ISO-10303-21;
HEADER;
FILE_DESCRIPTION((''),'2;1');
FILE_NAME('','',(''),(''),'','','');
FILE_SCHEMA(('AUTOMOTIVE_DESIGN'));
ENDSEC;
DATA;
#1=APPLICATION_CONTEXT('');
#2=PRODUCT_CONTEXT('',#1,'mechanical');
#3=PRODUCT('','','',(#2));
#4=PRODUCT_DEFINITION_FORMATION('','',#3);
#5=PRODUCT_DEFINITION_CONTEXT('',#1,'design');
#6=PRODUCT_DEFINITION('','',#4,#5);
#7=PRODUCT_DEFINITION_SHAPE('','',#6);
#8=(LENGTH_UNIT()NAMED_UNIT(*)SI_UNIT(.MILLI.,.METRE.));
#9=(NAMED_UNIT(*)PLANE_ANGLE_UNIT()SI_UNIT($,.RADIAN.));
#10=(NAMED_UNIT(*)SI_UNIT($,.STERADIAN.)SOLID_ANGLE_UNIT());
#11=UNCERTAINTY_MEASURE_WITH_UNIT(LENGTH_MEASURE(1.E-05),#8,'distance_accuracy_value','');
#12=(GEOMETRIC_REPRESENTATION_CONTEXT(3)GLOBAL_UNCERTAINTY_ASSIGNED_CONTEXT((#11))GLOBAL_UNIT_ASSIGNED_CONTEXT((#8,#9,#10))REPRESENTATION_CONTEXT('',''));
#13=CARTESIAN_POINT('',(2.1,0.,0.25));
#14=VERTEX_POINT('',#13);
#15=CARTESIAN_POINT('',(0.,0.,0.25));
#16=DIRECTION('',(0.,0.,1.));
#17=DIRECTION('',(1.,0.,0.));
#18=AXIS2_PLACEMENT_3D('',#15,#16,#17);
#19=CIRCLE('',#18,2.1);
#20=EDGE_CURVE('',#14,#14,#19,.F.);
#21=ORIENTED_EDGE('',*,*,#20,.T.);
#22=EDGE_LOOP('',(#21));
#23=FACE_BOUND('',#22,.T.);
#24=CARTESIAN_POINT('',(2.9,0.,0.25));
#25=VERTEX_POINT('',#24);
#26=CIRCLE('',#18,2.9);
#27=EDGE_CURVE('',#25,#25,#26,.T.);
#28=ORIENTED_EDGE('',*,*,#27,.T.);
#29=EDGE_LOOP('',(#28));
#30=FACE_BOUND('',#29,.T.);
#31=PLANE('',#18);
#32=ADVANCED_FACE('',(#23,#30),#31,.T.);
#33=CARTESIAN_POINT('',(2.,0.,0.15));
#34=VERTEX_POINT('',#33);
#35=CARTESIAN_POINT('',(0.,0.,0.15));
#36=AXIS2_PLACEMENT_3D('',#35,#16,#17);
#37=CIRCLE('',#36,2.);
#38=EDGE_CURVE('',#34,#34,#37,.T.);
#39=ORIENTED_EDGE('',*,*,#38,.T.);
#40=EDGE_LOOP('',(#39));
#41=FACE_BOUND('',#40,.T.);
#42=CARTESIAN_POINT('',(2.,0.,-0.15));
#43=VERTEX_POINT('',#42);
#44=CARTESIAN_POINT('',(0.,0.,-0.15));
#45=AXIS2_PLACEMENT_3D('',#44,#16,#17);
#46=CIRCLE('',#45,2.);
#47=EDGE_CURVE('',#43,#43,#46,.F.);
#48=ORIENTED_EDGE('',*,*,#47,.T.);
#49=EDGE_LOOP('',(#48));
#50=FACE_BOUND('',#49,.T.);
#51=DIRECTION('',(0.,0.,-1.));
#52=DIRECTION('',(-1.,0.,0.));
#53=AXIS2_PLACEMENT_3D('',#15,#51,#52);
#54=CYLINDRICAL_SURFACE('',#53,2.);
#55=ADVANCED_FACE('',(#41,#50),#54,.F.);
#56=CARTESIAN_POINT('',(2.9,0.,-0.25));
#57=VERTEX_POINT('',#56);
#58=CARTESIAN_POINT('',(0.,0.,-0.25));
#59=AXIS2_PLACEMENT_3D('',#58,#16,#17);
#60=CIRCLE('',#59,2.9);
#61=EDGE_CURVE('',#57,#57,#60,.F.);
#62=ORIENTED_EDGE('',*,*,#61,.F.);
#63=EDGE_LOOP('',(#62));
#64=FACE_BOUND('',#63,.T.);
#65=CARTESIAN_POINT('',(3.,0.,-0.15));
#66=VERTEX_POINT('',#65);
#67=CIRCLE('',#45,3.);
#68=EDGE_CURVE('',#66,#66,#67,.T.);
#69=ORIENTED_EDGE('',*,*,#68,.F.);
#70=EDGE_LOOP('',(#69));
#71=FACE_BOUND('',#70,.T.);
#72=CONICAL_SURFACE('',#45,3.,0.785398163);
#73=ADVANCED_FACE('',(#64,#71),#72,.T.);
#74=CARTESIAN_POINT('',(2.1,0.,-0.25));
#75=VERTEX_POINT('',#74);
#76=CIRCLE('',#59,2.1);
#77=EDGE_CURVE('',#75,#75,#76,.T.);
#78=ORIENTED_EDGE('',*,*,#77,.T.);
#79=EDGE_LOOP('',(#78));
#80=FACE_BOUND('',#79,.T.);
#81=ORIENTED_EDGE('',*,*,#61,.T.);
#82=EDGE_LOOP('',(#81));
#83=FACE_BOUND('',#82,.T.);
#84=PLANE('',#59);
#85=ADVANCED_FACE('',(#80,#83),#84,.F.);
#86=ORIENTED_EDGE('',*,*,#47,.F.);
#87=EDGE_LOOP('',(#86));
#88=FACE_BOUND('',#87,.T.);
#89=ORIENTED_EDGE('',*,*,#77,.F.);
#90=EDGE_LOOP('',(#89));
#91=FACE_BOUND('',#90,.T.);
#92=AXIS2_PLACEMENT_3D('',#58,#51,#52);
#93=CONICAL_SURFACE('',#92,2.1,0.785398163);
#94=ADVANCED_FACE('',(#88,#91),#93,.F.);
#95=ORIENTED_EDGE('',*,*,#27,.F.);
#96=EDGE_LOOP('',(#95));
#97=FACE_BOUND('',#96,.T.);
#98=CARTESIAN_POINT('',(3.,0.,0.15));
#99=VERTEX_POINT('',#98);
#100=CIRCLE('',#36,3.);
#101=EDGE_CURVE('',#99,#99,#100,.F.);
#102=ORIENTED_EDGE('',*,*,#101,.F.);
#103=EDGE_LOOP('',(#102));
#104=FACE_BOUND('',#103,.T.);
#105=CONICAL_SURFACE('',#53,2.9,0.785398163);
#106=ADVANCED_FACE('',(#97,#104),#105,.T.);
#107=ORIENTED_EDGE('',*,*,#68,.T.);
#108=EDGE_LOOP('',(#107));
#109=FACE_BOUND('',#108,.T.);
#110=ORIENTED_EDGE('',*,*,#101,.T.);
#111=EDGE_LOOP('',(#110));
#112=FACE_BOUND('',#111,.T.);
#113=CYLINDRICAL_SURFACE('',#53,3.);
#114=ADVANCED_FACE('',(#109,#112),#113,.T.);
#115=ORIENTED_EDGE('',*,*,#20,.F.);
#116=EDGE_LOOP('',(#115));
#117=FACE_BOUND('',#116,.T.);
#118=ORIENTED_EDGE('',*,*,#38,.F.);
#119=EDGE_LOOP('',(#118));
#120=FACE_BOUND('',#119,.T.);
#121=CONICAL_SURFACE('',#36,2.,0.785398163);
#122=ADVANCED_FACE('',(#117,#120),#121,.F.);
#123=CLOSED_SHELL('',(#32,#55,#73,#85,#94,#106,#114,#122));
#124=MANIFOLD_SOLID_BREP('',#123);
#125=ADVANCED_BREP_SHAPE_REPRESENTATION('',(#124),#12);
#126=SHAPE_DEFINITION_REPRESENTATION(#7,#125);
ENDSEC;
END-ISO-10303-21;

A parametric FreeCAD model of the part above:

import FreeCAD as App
import Part
import Sketcher

V = App.Vector
Q = App.Units.Quantity


def edges_at(feature, points):
    """Names of the edges that pass closest to the given points."""
    edges = feature.Shape.Edges
    near = lambda p: min(range(len(edges)), key=lambda i: edges[i].distToShape(Part.Vertex(*p))[0])
    return sorted({f"Edge{near(p) + 1}" for p in points})

doc = App.newDocument("Part")
body = doc.addObject("PartDesign::Body", "Body")

# Sketch on XY plane
sketch1 = doc.addObject("Sketcher::SketchObject", "Sketch")
body.addObject(sketch1)
sketch1.AttachmentSupport = (doc.XY_Plane, [""])
sketch1.MapMode = "FlatFace"
sketch1.addGeometry([
    Part.Circle(V(0, 0, 0), V(0, 0, 1), 3),
    Part.Circle(V(0, 0, 0), V(0, 0, 1), 2),
], False)
sketch1.addConstraint([
    Sketcher.Constraint("Coincident", 0, 3, -1, 1),
    Sketcher.Constraint("Coincident", 1, 3, -1, 1),
    Sketcher.Constraint("Diameter", 0, Q("6 mm")),
    Sketcher.Constraint("Diameter", 1, Q("4 mm")),
])
pad1 = doc.addObject("PartDesign::Pad", "Pad")
body.addObject(pad1)
pad1.Profile = sketch1
pad1.Length = 0.5
pad1.Midplane = True
doc.recompute()

chamfer = doc.addObject("PartDesign::Chamfer", "Chamfer")
body.addObject(chamfer)
chamfer.Base = (pad1, edges_at(pad1, [
    (-3, 0, -0.25),
    (-3, 0, 0.25),
    (-2, 0, -0.25),
    (-2, 0, 0.25),
]))
chamfer.Size = 0.1

doc.recompute()
